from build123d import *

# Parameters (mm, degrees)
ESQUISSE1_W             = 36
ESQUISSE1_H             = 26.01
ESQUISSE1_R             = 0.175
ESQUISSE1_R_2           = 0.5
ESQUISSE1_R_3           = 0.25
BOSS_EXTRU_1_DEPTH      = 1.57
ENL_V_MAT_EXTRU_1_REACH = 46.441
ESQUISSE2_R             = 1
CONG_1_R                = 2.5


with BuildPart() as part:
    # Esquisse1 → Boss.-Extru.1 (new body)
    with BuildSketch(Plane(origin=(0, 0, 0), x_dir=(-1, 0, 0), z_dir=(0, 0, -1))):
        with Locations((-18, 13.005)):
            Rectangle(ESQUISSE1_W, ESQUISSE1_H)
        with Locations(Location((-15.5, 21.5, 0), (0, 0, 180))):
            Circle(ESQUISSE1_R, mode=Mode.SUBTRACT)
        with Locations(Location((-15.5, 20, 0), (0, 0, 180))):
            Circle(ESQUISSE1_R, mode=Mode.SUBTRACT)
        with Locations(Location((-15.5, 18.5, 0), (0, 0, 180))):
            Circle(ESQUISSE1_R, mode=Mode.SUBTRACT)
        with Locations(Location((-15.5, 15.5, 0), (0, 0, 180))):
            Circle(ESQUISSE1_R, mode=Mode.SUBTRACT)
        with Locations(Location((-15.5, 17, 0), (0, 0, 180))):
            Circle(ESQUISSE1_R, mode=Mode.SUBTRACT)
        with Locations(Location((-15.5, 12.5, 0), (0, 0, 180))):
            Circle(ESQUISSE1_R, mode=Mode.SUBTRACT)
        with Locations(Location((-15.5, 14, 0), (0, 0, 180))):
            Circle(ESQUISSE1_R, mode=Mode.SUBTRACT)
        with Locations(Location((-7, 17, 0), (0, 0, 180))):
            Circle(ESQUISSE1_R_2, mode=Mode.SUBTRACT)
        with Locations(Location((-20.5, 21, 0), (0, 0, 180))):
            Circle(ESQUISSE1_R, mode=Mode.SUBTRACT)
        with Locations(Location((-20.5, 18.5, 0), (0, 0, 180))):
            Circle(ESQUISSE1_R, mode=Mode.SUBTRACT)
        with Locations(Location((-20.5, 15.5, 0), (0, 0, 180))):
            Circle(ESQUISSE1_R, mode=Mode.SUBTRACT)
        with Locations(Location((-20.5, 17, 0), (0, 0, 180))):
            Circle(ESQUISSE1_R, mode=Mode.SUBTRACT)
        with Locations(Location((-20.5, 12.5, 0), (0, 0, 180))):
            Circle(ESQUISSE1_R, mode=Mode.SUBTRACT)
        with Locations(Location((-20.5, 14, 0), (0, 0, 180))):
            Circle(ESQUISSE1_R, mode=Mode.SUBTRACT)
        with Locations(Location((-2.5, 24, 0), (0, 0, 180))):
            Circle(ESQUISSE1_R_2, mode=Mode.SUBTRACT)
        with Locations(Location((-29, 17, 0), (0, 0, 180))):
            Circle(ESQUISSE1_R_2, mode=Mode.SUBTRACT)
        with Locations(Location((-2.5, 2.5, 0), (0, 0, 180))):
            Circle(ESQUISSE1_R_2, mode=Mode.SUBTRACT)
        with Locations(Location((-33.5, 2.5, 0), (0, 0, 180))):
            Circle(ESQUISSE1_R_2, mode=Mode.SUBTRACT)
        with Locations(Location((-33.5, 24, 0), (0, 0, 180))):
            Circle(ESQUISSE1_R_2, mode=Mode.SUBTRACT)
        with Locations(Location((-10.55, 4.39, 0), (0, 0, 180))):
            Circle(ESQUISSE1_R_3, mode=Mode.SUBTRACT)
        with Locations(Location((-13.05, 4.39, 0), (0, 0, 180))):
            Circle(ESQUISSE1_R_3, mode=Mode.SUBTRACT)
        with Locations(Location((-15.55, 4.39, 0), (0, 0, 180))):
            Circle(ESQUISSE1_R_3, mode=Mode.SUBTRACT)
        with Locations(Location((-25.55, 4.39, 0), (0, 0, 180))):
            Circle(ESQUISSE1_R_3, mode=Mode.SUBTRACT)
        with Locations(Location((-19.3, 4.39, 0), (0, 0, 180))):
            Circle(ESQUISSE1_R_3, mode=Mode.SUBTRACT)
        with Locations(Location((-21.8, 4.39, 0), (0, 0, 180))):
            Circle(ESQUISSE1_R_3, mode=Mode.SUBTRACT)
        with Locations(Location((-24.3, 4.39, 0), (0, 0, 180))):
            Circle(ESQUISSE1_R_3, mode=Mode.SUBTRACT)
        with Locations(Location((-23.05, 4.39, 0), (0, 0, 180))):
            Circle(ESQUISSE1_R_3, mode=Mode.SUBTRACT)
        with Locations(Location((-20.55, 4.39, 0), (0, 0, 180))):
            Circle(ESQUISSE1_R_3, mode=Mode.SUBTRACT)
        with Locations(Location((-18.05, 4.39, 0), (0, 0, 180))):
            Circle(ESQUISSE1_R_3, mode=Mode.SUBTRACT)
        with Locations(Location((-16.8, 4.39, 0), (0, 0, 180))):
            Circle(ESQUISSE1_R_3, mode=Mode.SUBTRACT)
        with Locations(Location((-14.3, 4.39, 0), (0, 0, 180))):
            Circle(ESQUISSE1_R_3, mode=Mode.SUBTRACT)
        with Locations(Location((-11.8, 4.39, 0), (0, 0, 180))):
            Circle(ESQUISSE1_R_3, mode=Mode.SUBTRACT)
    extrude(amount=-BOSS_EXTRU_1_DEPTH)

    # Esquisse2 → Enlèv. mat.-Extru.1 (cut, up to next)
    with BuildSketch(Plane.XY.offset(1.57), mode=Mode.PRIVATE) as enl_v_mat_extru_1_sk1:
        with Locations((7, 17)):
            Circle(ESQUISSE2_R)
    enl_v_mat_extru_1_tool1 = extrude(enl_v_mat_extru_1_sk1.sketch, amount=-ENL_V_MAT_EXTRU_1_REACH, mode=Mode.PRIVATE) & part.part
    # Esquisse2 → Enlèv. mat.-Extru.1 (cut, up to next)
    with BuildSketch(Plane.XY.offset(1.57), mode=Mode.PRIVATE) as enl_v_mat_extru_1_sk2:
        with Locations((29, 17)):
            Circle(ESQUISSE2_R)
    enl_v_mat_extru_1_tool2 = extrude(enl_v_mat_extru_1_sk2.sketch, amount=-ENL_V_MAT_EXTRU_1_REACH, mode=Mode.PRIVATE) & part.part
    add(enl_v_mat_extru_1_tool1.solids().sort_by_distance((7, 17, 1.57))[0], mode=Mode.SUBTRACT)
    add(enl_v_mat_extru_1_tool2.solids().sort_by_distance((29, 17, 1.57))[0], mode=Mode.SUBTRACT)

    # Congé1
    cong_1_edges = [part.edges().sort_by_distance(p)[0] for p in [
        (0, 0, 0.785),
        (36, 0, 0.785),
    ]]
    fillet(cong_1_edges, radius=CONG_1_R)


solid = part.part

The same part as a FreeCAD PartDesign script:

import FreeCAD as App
import Part
import Sketcher

V = App.Vector


def edges_at(feature, points):
    """Names of the edges that pass closest to the given points."""
    edges = feature.Shape.Edges
    near = lambda p: min(range(len(edges)), key=lambda i: edges[i].distToShape(Part.Vertex(*p))[0])
    return sorted({f"Edge{near(p) + 1}" for p in points})

doc = App.newDocument("Part")
body = doc.addObject("PartDesign::Body", "Body")

sketch1 = body.newObject("Sketcher::SketchObject", "Sketch")
sketch1.AttachmentSupport = (doc.getObject("XY_Plane"), [""])
sketch1.MapMode = "FlatFace"
sketch1.addGeometry(Part.LineSegment(V(36, 26.01, 0), V(36, 0, 0)), False)
sketch1.addGeometry(Part.LineSegment(V(36, 0, 0), V(0, 0, 0)), False)
sketch1.addGeometry(Part.LineSegment(V(0, 0, 0), V(0, 26.01, 0)), False)
sketch1.addGeometry(Part.LineSegment(V(0, 26.01, 0), V(36, 26.01, 0)), False)
sketch1.addGeometry(Part.Circle(V(33.5, 2.5, 0), V(0, 0, 1), 0.5), False)
sketch1.addGeometry(Part.Circle(V(25.55, 4.39, 0), V(0, 0, 1), 0.25), False)
sketch1.addGeometry(Part.Circle(V(24.3, 4.39, 0), V(0, 0, 1), 0.25), False)
sketch1.addGeometry(Part.Circle(V(23.05, 4.39, 0), V(0, 0, 1), 0.25), False)
sketch1.addGeometry(Part.Circle(V(21.8, 4.39, 0), V(0, 0, 1), 0.25), False)
sketch1.addGeometry(Part.Circle(V(20.55, 4.39, 0), V(0, 0, 1), 0.25), False)
sketch1.addGeometry(Part.Circle(V(19.3, 4.39, 0), V(0, 0, 1), 0.25), False)
sketch1.addGeometry(Part.Circle(V(18.05, 4.39, 0), V(0, 0, 1), 0.25), False)
sketch1.addGeometry(Part.Circle(V(20.5, 12.5, 0), V(0, 0, 1), 0.175), False)
sketch1.addGeometry(Part.Circle(V(16.8, 4.39, 0), V(0, 0, 1), 0.25), False)
sketch1.addGeometry(Part.Circle(V(15.55, 4.39, 0), V(0, 0, 1), 0.25), False)
sketch1.addGeometry(Part.Circle(V(14.3, 4.39, 0), V(0, 0, 1), 0.25), False)
sketch1.addGeometry(Part.Circle(V(13.05, 4.39, 0), V(0, 0, 1), 0.25), False)
sketch1.addGeometry(Part.Circle(V(11.8, 4.39, 0), V(0, 0, 1), 0.25), False)
sketch1.addGeometry(Part.Circle(V(10.55, 4.39, 0), V(0, 0, 1), 0.25), False)
sketch1.addGeometry(Part.Circle(V(2.5, 2.5, 0), V(0, 0, 1), 0.5), False)
sketch1.addGeometry(Part.Circle(V(15.5, 12.5, 0), V(0, 0, 1), 0.175), False)
sketch1.addGeometry(Part.Circle(V(29, 17, 0), V(0, 0, 1), 0.5), False)
sketch1.addGeometry(Part.Circle(V(20.5, 14, 0), V(0, 0, 1), 0.175), False)
sketch1.addGeometry(Part.Circle(V(20.5, 15.5, 0), V(0, 0, 1), 0.175), False)
sketch1.addGeometry(Part.Circle(V(20.5, 17, 0), V(0, 0, 1), 0.175), False)
sketch1.addGeometry(Part.Circle(V(20.5, 18.5, 0), V(0, 0, 1), 0.175), False)
sketch1.addGeometry(Part.Circle(V(33.5, 24, 0), V(0, 0, 1), 0.5), False)
sketch1.addGeometry(Part.Circle(V(20.5, 21, 0), V(0, 0, 1), 0.175), False)
sketch1.addGeometry(Part.Circle(V(15.5, 14, 0), V(0, 0, 1), 0.175), False)
sketch1.addGeometry(Part.Circle(V(15.5, 15.5, 0), V(0, 0, 1), 0.175), False)
sketch1.addGeometry(Part.Circle(V(15.5, 17, 0), V(0, 0, 1), 0.175), False)
sketch1.addGeometry(Part.Circle(V(15.5, 18.5, 0), V(0, 0, 1), 0.175), False)
sketch1.addGeometry(Part.Circle(V(7, 17, 0), V(0, 0, 1), 0.5), False)
sketch1.addGeometry(Part.Circle(V(15.5, 20, 0), V(0, 0, 1), 0.175), False)
sketch1.addGeometry(Part.Circle(V(15.5, 21.5, 0), V(0, 0, 1), 0.175), False)
sketch1.addGeometry(Part.Circle(V(2.5, 24, 0), V(0, 0, 1), 0.5), False)
sketch1.addConstraint(Sketcher.Constraint("Coincident", 0, 2, 1, 1))
sketch1.addConstraint(Sketcher.Constraint("Coincident", 1, 2, 2, 1))
sketch1.addConstraint(Sketcher.Constraint("Coincident", 2, 2, 3, 1))
sketch1.addConstraint(Sketcher.Constraint("Coincident", 3, 2, 0, 1))
sketch1.addConstraint(Sketcher.Constraint("Vertical", 0))
sketch1.addConstraint(Sketcher.Constraint("Horizontal", 1))
sketch1.addConstraint(Sketcher.Constraint("Vertical", 2))
sketch1.addConstraint(Sketcher.Constraint("Horizontal", 3))
sketch1.addConstraint(Sketcher.Constraint("Coincident", 1, 2, -1, 1))
sketch1.addConstraint(Sketcher.Constraint("Equal", 5, 6))
sketch1.addConstraint(Sketcher.Constraint("Equal", 6, 7))
sketch1.addConstraint(Sketcher.Constraint("Equal", 7, 8))
sketch1.addConstraint(Sketcher.Constraint("Equal", 8, 9))
sketch1.addConstraint(Sketcher.Constraint("Equal", 9, 10))
sketch1.addConstraint(Sketcher.Constraint("Equal", 10, 11))
sketch1.addConstraint(Sketcher.Constraint("Equal", 11, 13))
sketch1.addConstraint(Sketcher.Constraint("Equal", 13, 14))
sketch1.addConstraint(Sketcher.Constraint("Equal", 14, 15))
sketch1.addConstraint(Sketcher.Constraint("Equal", 15, 16))
sketch1.addConstraint(Sketcher.Constraint("Equal", 16, 17))
sketch1.addConstraint(Sketcher.Constraint("Equal", 17, 18))
sketch1.addConstraint(Sketcher.Constraint("Equal", 4, 19))
sketch1.addConstraint(Sketcher.Constraint("Equal", 12, 20))
sketch1.addConstraint(Sketcher.Constraint("Equal", 19, 21))
sketch1.addConstraint(Sketcher.Constraint("Equal", 20, 22))
sketch1.addConstraint(Sketcher.Constraint("Equal", 22, 23))
sketch1.addConstraint(Sketcher.Constraint("Equal", 23, 24))
sketch1.addConstraint(Sketcher.Constraint("Equal", 24, 25))
sketch1.addConstraint(Sketcher.Constraint("Equal", 21, 26))
sketch1.addConstraint(Sketcher.Constraint("Equal", 25, 27))
sketch1.addConstraint(Sketcher.Constraint("Equal", 27, 28))
sketch1.addConstraint(Sketcher.Constraint("Equal", 28, 29))
sketch1.addConstraint(Sketcher.Constraint("Equal", 29, 30))
sketch1.addConstraint(Sketcher.Constraint("Equal", 30, 31))
sketch1.addConstraint(Sketcher.Constraint("Equal", 26, 32))
sketch1.addConstraint(Sketcher.Constraint("Equal", 31, 33))
sketch1.addConstraint(Sketcher.Constraint("Equal", 33, 34))
sketch1.addConstraint(Sketcher.Constraint("Equal", 32, 35))
sketch1.addConstraint(Sketcher.Constraint("Horizontal", 5, 3, 6, 3))
sketch1.addConstraint(Sketcher.Constraint("Horizontal", 6, 3, 7, 3))
sketch1.addConstraint(Sketcher.Constraint("Horizontal", 7, 3, 8, 3))
sketch1.addConstraint(Sketcher.Constraint("Horizontal", 8, 3, 9, 3))
sketch1.addConstraint(Sketcher.Constraint("Horizontal", 9, 3, 10, 3))
sketch1.addConstraint(Sketcher.Constraint("Horizontal", 10, 3, 11, 3))
sketch1.addConstraint(Sketcher.Constraint("Horizontal", 11, 3, 13, 3))
sketch1.addConstraint(Sketcher.Constraint("Horizontal", 13, 3, 14, 3))
sketch1.addConstraint(Sketcher.Constraint("Horizontal", 14, 3, 15, 3))
sketch1.addConstraint(Sketcher.Constraint("Horizontal", 15, 3, 16, 3))
sketch1.addConstraint(Sketcher.Constraint("Horizontal", 16, 3, 17, 3))
sketch1.addConstraint(Sketcher.Constraint("Horizontal", 17, 3, 18, 3))
sketch1.addConstraint(Sketcher.Constraint("Horizontal", 4, 3, 19, 3))
sketch1.addConstraint(Sketcher.Constraint("Horizontal", 12, 3, 20, 3))
sketch1.addConstraint(Sketcher.Constraint("Horizontal", 21, 3, 24, 3))
sketch1.addConstraint(Sketcher.Constraint("Horizontal", 22, 3, 28, 3))
sketch1.addConstraint(Sketcher.Constraint("Horizontal", 23, 3, 29, 3))
sketch1.addConstraint(Sketcher.Constraint("Horizontal", 24, 3, 30, 3))
sketch1.addConstraint(Sketcher.Constraint("Horizontal", 25, 3, 31, 3))
sketch1.addConstraint(Sketcher.Constraint("Horizontal", 30, 3, 32, 3))
sketch1.addConstraint(Sketcher.Constraint("Horizontal", 26, 3, 35, 3))
sketch1.addConstraint(Sketcher.Constraint("Vertical", 12, 3, 22, 3))
sketch1.addConstraint(Sketcher.Constraint("Vertical", 22, 3, 23, 3))
sketch1.addConstraint(Sketcher.Constraint("Vertical", 23, 3, 24, 3))
sketch1.addConstraint(Sketcher.Constraint("Vertical", 24, 3, 25, 3))
sketch1.addConstraint(Sketcher.Constraint("Vertical", 4, 3, 26, 3))
sketch1.addConstraint(Sketcher.Constraint("Vertical", 25, 3, 27, 3))
sketch1.addConstraint(Sketcher.Constraint("Vertical", 20, 3, 28, 3))
sketch1.addConstraint(Sketcher.Constraint("Vertical", 28, 3, 29, 3))
sketch1.addConstraint(Sketcher.Constraint("Vertical", 29, 3, 30, 3))
sketch1.addConstraint(Sketcher.Constraint("Vertical", 30, 3, 31, 3))
sketch1.addConstraint(Sketcher.Constraint("Vertical", 31, 3, 33, 3))
sketch1.addConstraint(Sketcher.Constraint("Vertical", 33, 3, 34, 3))
sketch1.addConstraint(Sketcher.Constraint("Vertical", 19, 3, 35, 3))
sketch1.addConstraint(Sketcher.Constraint("Diameter", 4, 1.0))
sketch1.addConstraint(Sketcher.Constraint("Diameter", 5, 0.5))
sketch1.addConstraint(Sketcher.Constraint("Diameter", 12, 0.35))
sketch1.addConstraint(Sketcher.Constraint("DistanceX", 1, 2, 1, 1, 36.0))
sketch1.addConstraint(Sketcher.Constraint("DistanceX", -1, 1, 21, 3, 29.0))
sketch1.addConstraint(Sketcher.Constraint("DistanceY", -1, 1, 21, 3, 17.0))
sketch1.addConstraint(Sketcher.Constraint("DistanceY", -1, 1, 22, 3, 14.0))
sketch1.addConstraint(Sketcher.Constraint("DistanceY", -1, 1, 26, 3, 24.0))
sketch1.addConstraint(Sketcher.Constraint("DistanceY", -1, 1, 27, 3, 21.0))
sketch1.addConstraint(Sketcher.Constraint("DistanceX", -1, 1, 32, 3, 7.0))
sketch1.addConstraint(Sketcher.Constraint("DistanceY", -1, 1, 33, 3, 20.0))
sketch1.addConstraint(Sketcher.Constraint("DistanceX", 9, 3, 5, 3, 5.0))
sketch1.addConstraint(Sketcher.Constraint("DistanceX", 10, 3, 6, 3, 5.0))
sketch1.addConstraint(Sketcher.Constraint("DistanceX", 11, 3, 7, 3, 5.0))
sketch1.addConstraint(Sketcher.Constraint("DistanceX", 13, 3, 8, 3, 5.0))
sketch1.addConstraint(Sketcher.Constraint("DistanceX", 14, 3, 9, 3, 5.0))
sketch1.addConstraint(Sketcher.Constraint("DistanceX", 15, 3, 10, 3, 5.0))
sketch1.addConstraint(Sketcher.Constraint("DistanceX", 16, 3, 11, 3, 5.0))
sketch1.addConstraint(Sketcher.Constraint("DistanceX", 17, 3, 13, 3, 5.0))
sketch1.addConstraint(Sketcher.Constraint("DistanceX", 18, 3, 14, 3, 5.0))
sketch1.addConstraint(Sketcher.Constraint("DistanceX", 20, 3, 12, 3, 5.0))
sketch1.addConstraint(Sketcher.Constraint("DistanceY", 12, 3, 23, 3, 3.0))
sketch1.addConstraint(Sketcher.Constraint("DistanceY", 23, 3, 25, 3, 3.0))
sketch1.addConstraint(Sketcher.Constraint("DistanceX", 25, 3, 26, 3, 13.0))
sketch1.addConstraint(Sketcher.Constraint("DistanceY", 31, 3, 34, 3, 3.0))
sketch1.addConstraint(Sketcher.Constraint("DistanceX", 35, 3, 34, 3, 13.0))
sketch1.addConstraint(Sketcher.Constraint("DistanceY", 0, 2, 0, 1, 26.01))
sketch1.addConstraint(Sketcher.Constraint("DistanceX", -1, 1, 4, 3, 33.5))
sketch1.addConstraint(Sketcher.Constraint("DistanceY", -1, 1, 4, 3, 2.5))
sketch1.addConstraint(Sketcher.Constraint("DistanceX", -1, 1, 6, 3, 24.3))
sketch1.addConstraint(Sketcher.Constraint("DistanceX", -1, 1, 8, 3, 21.8))
sketch1.addConstraint(Sketcher.Constraint("DistanceY", -1, 1, 12, 3, 12.5))
sketch1.addConstraint(Sketcher.Constraint("DistanceX", 7, 3, 5, 3, 2.5))
sketch1.addConstraint(Sketcher.Constraint("DistanceX", -1, 1, 5, 3, 25.55))
sketch1.addConstraint(Sketcher.Constraint("DistanceY", -1, 1, 5, 3, 4.39))
pad1 = body.newObject("PartDesign::Pad", "Pad")
pad1.Profile = sketch1
pad1.Length = 1.57

sketch2 = body.newObject("Sketcher::SketchObject", "Sketch001")
sketch2.AttachmentSupport = (doc.getObject("XY_Plane"), [""])
sketch2.MapMode = "FlatFace"
sketch2.AttachmentOffset = App.Placement(V(0, 0, 1.57), App.Rotation())
sketch2.addGeometry(Part.Circle(V(7, 17, 0), V(0, 0, 1), 1), False)
sketch2.addConstraint(Sketcher.Constraint("Diameter", 0, 2.0))
sketch2.addConstraint(Sketcher.Constraint("DistanceX", -1, 1, 0, 3, 7.0))
sketch2.addConstraint(Sketcher.Constraint("DistanceY", -1, 1, 0, 3, 17.0))
pocket1 = body.newObject("PartDesign::Pocket", "Pocket")
pocket1.Profile = sketch2
pocket1.Length = 1.57

sketch3 = body.newObject("Sketcher::SketchObject", "Sketch002")
sketch3.AttachmentSupport = (doc.getObject("XY_Plane"), [""])
sketch3.MapMode = "FlatFace"
sketch3.AttachmentOffset = App.Placement(V(0, 0, 1.57), App.Rotation())
sketch3.addGeometry(Part.Circle(V(29, 17, 0), V(0, 0, 1), 1), False)
sketch3.addConstraint(Sketcher.Constraint("Diameter", 0, 2.0))
sketch3.addConstraint(Sketcher.Constraint("DistanceX", -1, 1, 0, 3, 29.0))
sketch3.addConstraint(Sketcher.Constraint("DistanceY", -1, 1, 0, 3, 17.0))
pocket2 = body.newObject("PartDesign::Pocket", "Pocket001")
pocket2.Profile = sketch3
pocket2.Length = 1.57
doc.recompute()

fillet = body.newObject("PartDesign::Fillet", "Fillet")
fillet.Base = (pocket2, edges_at(pocket2, [(0, 0, 0.785), (36, 0, 0.785)]))
fillet.Radius = 2.5

doc.recompute()
